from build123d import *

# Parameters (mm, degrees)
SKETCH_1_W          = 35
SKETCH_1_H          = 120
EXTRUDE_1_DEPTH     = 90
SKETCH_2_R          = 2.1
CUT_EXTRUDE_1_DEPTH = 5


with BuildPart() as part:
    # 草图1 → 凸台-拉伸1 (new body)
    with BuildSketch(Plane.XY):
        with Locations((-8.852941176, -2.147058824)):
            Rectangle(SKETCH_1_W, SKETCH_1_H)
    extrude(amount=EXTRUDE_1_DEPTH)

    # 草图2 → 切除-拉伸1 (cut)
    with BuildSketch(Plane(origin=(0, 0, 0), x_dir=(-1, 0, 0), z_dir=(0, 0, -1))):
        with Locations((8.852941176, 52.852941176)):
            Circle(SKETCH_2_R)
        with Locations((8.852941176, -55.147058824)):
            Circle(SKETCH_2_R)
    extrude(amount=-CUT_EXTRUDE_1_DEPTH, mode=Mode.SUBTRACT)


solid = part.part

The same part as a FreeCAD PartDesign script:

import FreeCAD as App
import Part
import Sketcher

V = App.Vector
Q = App.Units.Quantity


def add_polygon(sketch, points):
    """Adds a closed chain of lines whose ends are joined by coincident constraints."""
    first, n = sketch.GeometryCount, len(points)
    for a, b in zip(points, points[1:] + points[:1]):
        sketch.addGeometry(Part.LineSegment(App.Vector(*a, 0), App.Vector(*b, 0)), False)
    for i in range(n):
        sketch.addConstraint(Sketcher.Constraint("Coincident", first + i, 2, first + (i + 1) % n, 1))

doc = App.newDocument("Part")
body = doc.addObject("PartDesign::Body", "Body")

# Sketch on XY plane
sketch1 = body.newObject("Sketcher::SketchObject", "Sketch")
sketch1.AttachmentSupport = (doc.getObject("XY_Plane"), [""])
sketch1.MapMode = "FlatFace"
add_polygon(sketch1, [(-26, 58), (-26, -62), (9, -62), (9, 58)])  # lines 0-3
sketch1.addConstraint(Sketcher.Constraint("Vertical", 0))
sketch1.addConstraint(Sketcher.Constraint("Horizontal", 1))
sketch1.addConstraint(Sketcher.Constraint("Vertical", 2))
sketch1.addConstraint(Sketcher.Constraint("Horizontal", 3))
sketch1.addConstraint(Sketcher.Constraint("DistanceX", 1, 1, 1, 2, Q("35 mm")))
sketch1.addConstraint(Sketcher.Constraint("DistanceY", 0, 2, 0, 1, Q("120 mm")))
sketch1.addConstraint(Sketcher.Constraint("DistanceX", 0, 2, -1, 1, Q("26.352941 mm")))
sketch1.addConstraint(Sketcher.Constraint("DistanceY", 0, 2, -1, 1, Q("62.147059 mm")))
pad1 = body.newObject("PartDesign::Pad", "Pad")
pad1.Profile = sketch1
pad1.Length = 90

# Sketch on XY plane
sketch2 = body.newObject("Sketcher::SketchObject", "Sketch001")
sketch2.AttachmentSupport = (doc.getObject("XY_Plane"), [""])
sketch2.MapMode = "FlatFace"
sketch2.addGeometry(Part.Circle(V(-8.9, 52.9, 0), V(0, 0, 1), 2.1), False)
sketch2.addGeometry(Part.Circle(V(-8.9, -55.1, 0), V(0, 0, 1), 2.1), False)
sketch2.addConstraint(Sketcher.Constraint("Equal", 0, 1))
sketch2.addConstraint(Sketcher.Constraint("Vertical", 0, 3, 1, 3))
sketch2.addConstraint(Sketcher.Constraint("Diameter", 0, Q("4.2 mm")))
sketch2.addConstraint(Sketcher.Constraint("DistanceY", 1, 3, 0, 3, Q("108 mm")))
sketch2.addConstraint(Sketcher.Constraint("DistanceX", 0, 3, -1, 1, Q("8.852941 mm")))
sketch2.addConstraint(Sketcher.Constraint("DistanceY", -1, 1, 0, 3, Q("52.852941 mm")))
pocket1 = body.newObject("PartDesign::Pocket", "Pocket")
pocket1.Profile = sketch2
pocket1.Length = 5
pocket1.Reversed = True

doc.recompute()
